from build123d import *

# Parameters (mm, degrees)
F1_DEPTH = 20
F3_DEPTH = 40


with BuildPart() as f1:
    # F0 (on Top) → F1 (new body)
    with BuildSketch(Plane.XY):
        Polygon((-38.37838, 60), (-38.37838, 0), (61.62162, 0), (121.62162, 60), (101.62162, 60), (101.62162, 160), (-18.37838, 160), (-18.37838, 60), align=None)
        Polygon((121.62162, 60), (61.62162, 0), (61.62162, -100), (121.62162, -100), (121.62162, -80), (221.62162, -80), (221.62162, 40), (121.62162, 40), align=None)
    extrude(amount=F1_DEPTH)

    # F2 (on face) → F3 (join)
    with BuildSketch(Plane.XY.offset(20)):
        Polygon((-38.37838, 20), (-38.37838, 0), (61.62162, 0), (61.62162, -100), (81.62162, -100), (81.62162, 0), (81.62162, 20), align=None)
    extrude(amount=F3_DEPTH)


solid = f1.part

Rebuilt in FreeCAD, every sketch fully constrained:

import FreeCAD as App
import Part
import Sketcher

V = App.Vector

doc = App.newDocument("Part")
body = doc.addObject("PartDesign::Body", "Body")

# Sketch on XY plane
sketch1 = body.newObject("Sketcher::SketchObject", "Sketch")
sketch1.AttachmentSupport = (doc.getObject("XY_Plane"), [""])
sketch1.MapMode = "FlatFace"
sketch1.addGeometry(Part.LineSegment(V(-38, 60, 0), V(-38, 0, 0)), False)
sketch1.addGeometry(Part.LineSegment(V(-38, 0, 0), V(62, 0, 0)), False)
sketch1.addGeometry(Part.LineSegment(V(62, 0, 0), V(62, -100, 0)), False)
sketch1.addGeometry(Part.LineSegment(V(62, -100, 0), V(122, -100, 0)), False)
sketch1.addGeometry(Part.LineSegment(V(122, -100, 0), V(122, -80, 0)), False)
sketch1.addGeometry(Part.LineSegment(V(122, -80, 0), V(222, -80, 0)), False)
sketch1.addGeometry(Part.LineSegment(V(222, -80, 0), V(222, 40, 0)), False)
sketch1.addGeometry(Part.LineSegment(V(222, 40, 0), V(122, 40, 0)), False)
sketch1.addGeometry(Part.LineSegment(V(122, 40, 0), V(122, 60, 0)), False)
sketch1.addGeometry(Part.LineSegment(V(122, 60, 0), V(102, 60, 0)), False)
sketch1.addGeometry(Part.LineSegment(V(102, 60, 0), V(102, 160, 0)), False)
sketch1.addGeometry(Part.LineSegment(V(102, 160, 0), V(-18, 160, 0)), False)
sketch1.addGeometry(Part.LineSegment(V(-18, 160, 0), V(-18, 60, 0)), False)
sketch1.addGeometry(Part.LineSegment(V(-18, 60, 0), V(-38, 60, 0)), False)
sketch1.addConstraint(Sketcher.Constraint("Coincident", 0, 2, 1, 1))
sketch1.addConstraint(Sketcher.Constraint("Coincident", 1, 2, 2, 1))
sketch1.addConstraint(Sketcher.Constraint("Coincident", 2, 2, 3, 1))
sketch1.addConstraint(Sketcher.Constraint("Coincident", 3, 2, 4, 1))
sketch1.addConstraint(Sketcher.Constraint("Coincident", 4, 2, 5, 1))
sketch1.addConstraint(Sketcher.Constraint("Coincident", 5, 2, 6, 1))
sketch1.addConstraint(Sketcher.Constraint("Coincident", 6, 2, 7, 1))
sketch1.addConstraint(Sketcher.Constraint("Coincident", 7, 2, 8, 1))
sketch1.addConstraint(Sketcher.Constraint("Coincident", 8, 2, 9, 1))
sketch1.addConstraint(Sketcher.Constraint("Coincident", 9, 2, 10, 1))
sketch1.addConstraint(Sketcher.Constraint("Coincident", 10, 2, 11, 1))
sketch1.addConstraint(Sketcher.Constraint("Coincident", 11, 2, 12, 1))
sketch1.addConstraint(Sketcher.Constraint("Coincident", 12, 2, 13, 1))
sketch1.addConstraint(Sketcher.Constraint("Coincident", 13, 2, 0, 1))
sketch1.addConstraint(Sketcher.Constraint("Vertical", 0))
sketch1.addConstraint(Sketcher.Constraint("Horizontal", 1))
sketch1.addConstraint(Sketcher.Constraint("Vertical", 2))
sketch1.addConstraint(Sketcher.Constraint("Horizontal", 3))
sketch1.addConstraint(Sketcher.Constraint("Vertical", 4))
sketch1.addConstraint(Sketcher.Constraint("Horizontal", 5))
sketch1.addConstraint(Sketcher.Constraint("Vertical", 6))
sketch1.addConstraint(Sketcher.Constraint("Horizontal", 7))
sketch1.addConstraint(Sketcher.Constraint("Vertical", 8))
sketch1.addConstraint(Sketcher.Constraint("Horizontal", 9))
sketch1.addConstraint(Sketcher.Constraint("Vertical", 10))
sketch1.addConstraint(Sketcher.Constraint("Horizontal", 11))
sketch1.addConstraint(Sketcher.Constraint("Vertical", 12))
sketch1.addConstraint(Sketcher.Constraint("Horizontal", 13))
sketch1.addConstraint(Sketcher.Constraint("PointOnObject", 0, 2, -1))
sketch1.addConstraint(Sketcher.Constraint("Horizontal", 9, 2, 12, 2))
sketch1.addConstraint(Sketcher.Constraint("Vertical", 4, 2, 7, 2))
sketch1.addConstraint(Sketcher.Constraint("Equal", 1, 5))
sketch1.addConstraint(Sketcher.Constraint("Equal", 9, 13))
sketch1.addConstraint(Sketcher.Constraint("Equal", 3, 0))
sketch1.addConstraint(Sketcher.Constraint("Equal", 7, 2))
sketch1.addConstraint(Sketcher.Constraint("Equal", 13, 4))
sketch1.addConstraint(Sketcher.Constraint("Equal", 11, 6))
sketch1.addConstraint(Sketcher.Constraint("Equal", 2, 10))
sketch1.addConstraint(Sketcher.Constraint("DistanceX", 1, 1, 1, 2, 100.0))
sketch1.addConstraint(Sketcher.Constraint("DistanceX", 3, 1, 3, 2, 60.0))
sketch1.addConstraint(Sketcher.Constraint("DistanceX", 9, 2, 9, 1, 20.0))
sketch1.addConstraint(Sketcher.Constraint("DistanceX", 0, 2, -1, 1, 38.37838))
pad1 = body.newObject("PartDesign::Pad", "Pad")
pad1.Profile = sketch1
pad1.Length = 20

# Sketch on XY plane
sketch2 = body.newObject("Sketcher::SketchObject", "Sketch001")
sketch2.AttachmentSupport = (doc.getObject("XY_Plane"), [""])
sketch2.MapMode = "FlatFace"
sketch2.AttachmentOffset = App.Placement(V(0, 0, 20), App.Rotation())
sketch2.addGeometry(Part.LineSegment(V(-38, 20, 0), V(-38, 0, 0)), False)
sketch2.addGeometry(Part.LineSegment(V(-38, 0, 0), V(62, 0, 0)), False)
sketch2.addGeometry(Part.LineSegment(V(62, 0, 0), V(62, -100, 0)), False)
sketch2.addGeometry(Part.LineSegment(V(62, -100, 0), V(82, -100, 0)), False)
sketch2.addGeometry(Part.LineSegment(V(82, -100, 0), V(82, 20, 0)), False)
sketch2.addGeometry(Part.LineSegment(V(82, 20, 0), V(-38, 20, 0)), False)
sketch2.addConstraint(Sketcher.Constraint("Coincident", 0, 2, 1, 1))
sketch2.addConstraint(Sketcher.Constraint("Coincident", 1, 2, 2, 1))
sketch2.addConstraint(Sketcher.Constraint("Coincident", 2, 2, 3, 1))
sketch2.addConstraint(Sketcher.Constraint("Coincident", 3, 2, 4, 1))
sketch2.addConstraint(Sketcher.Constraint("Coincident", 4, 2, 5, 1))
sketch2.addConstraint(Sketcher.Constraint("Coincident", 5, 2, 0, 1))
sketch2.addConstraint(Sketcher.Constraint("Vertical", 0))
sketch2.addConstraint(Sketcher.Constraint("Horizontal", 1))
sketch2.addConstraint(Sketcher.Constraint("Vertical", 2))
sketch2.addConstraint(Sketcher.Constraint("Horizontal", 3))
sketch2.addConstraint(Sketcher.Constraint("Vertical", 4))
sketch2.addConstraint(Sketcher.Constraint("Horizontal", 5))
sketch2.addConstraint(Sketcher.Constraint("PointOnObject", 0, 2, -1))
sketch2.addConstraint(Sketcher.Constraint("Equal", 3, 0))
sketch2.addConstraint(Sketcher.Constraint("Equal", 1, 2))
sketch2.addConstraint(Sketcher.Constraint("DistanceX", 1, 1, 1, 2, 100.0))
sketch2.addConstraint(Sketcher.Constraint("DistanceX", 3, 1, 3, 2, 20.0))
sketch2.addConstraint(Sketcher.Constraint("DistanceX", 0, 2, -1, 1, 38.37838))
pad2 = body.newObject("PartDesign::Pad", "Pad001")
pad2.Profile = sketch2
pad2.Length = 40

doc.recompute()
